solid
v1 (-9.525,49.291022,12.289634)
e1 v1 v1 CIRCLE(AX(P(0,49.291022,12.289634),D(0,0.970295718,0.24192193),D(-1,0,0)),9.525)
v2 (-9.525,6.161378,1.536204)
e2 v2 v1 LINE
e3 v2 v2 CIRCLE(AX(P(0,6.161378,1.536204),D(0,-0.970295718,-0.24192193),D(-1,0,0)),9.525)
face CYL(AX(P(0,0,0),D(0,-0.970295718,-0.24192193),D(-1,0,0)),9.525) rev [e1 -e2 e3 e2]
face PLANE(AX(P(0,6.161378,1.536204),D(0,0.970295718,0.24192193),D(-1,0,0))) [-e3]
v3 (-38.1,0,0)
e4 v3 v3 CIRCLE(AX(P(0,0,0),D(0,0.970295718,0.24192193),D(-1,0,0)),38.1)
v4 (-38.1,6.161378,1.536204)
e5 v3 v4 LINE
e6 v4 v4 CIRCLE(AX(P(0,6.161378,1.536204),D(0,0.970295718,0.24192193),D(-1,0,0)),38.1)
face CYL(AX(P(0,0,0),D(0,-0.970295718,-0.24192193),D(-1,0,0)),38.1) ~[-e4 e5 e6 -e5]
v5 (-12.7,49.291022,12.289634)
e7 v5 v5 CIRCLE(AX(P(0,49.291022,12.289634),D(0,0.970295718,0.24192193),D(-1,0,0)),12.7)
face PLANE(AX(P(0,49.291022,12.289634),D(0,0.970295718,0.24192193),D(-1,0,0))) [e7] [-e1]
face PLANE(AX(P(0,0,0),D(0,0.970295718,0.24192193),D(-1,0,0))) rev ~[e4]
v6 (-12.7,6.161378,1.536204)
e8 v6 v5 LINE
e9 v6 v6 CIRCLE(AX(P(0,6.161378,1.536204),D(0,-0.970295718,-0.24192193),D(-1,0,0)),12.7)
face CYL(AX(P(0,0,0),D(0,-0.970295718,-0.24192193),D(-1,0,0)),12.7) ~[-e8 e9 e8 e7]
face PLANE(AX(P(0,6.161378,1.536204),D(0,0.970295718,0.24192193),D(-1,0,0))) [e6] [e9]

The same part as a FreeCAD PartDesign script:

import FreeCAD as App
import Part
import Sketcher

V = App.Vector
Q = App.Units.Quantity

doc = App.newDocument("Part")
body = doc.addObject("PartDesign::Body", "Body")

sketch1 = doc.addObject("Sketcher::SketchObject", "Sketch")
body.addObject(sketch1)
sketch1.Placement = App.Placement(V(0, 0, 0), App.Rotation(V(-1, 0, 0), V(0, -0.24192193, 0.970295718), V(0, 0.970295718, 0.24192193), "ZXY"))
sketch1.addGeometry(Part.Circle(V(0, 0, 0), V(0, 0, 1), 38), False)
sketch1.addConstraint([
    Sketcher.Constraint("Coincident", 0, 3, -1, 1),
    Sketcher.Constraint("Diameter", 0, Q("3 in")),
])
pad1 = doc.addObject("PartDesign::Pad", "Pad")
body.addObject(pad1)
pad1.Profile = sketch1
pad1.Length = Q("0.25 in")

sketch2 = doc.addObject("Sketcher::SketchObject", "Sketch001")
body.addObject(sketch2)
sketch2.Placement = App.Placement(V(0, 0, 0), App.Rotation(V(-1, 0, 0), V(0, -0.24192193, 0.970295718), V(0, 0.970295718, 0.24192193), "ZXY"))
sketch2.addGeometry([
    Part.Circle(V(0, 0, 0), V(0, 0, 1), 13),
    Part.Circle(V(0, 0, 0), V(0, 0, 1), 10),
], False)
sketch2.addConstraint([
    Sketcher.Constraint("Coincident", 0, 3, -1, 1),
    Sketcher.Constraint("Coincident", 1, 3, -1, 1),
    Sketcher.Constraint("Diameter", 0, Q("1 in")),
    Sketcher.Constraint("Diameter", 1, Q("0.75 in")),
])
pad2 = doc.addObject("PartDesign::Pad", "Pad001")
body.addObject(pad2)
pad2.Profile = sketch2
pad2.Length = Q("2 in")

sketch3 = doc.addObject("Sketcher::SketchObject", "Sketch002")
body.addObject(sketch3)
sketch3.AttachmentSupport = (doc.YZ_Plane, [""])
sketch3.MapMode = "FlatFace"
sketch3.addGeometry([
    Part.LineSegment(V(4, -14, 0), V(-6, 23, 0)),
    Part.LineSegment(V(-6, 23, 0), V(-20, 19, 0)),
    Part.LineSegment(V(-20, 19, 0), V(-10, -18, 0)),
    Part.LineSegment(V(-10, -18, 0), V(4, -14, 0)),
], False)
sketch3.addConstraint([
    Sketcher.Constraint("Coincident", 0, 2, 1, 1),
    Sketcher.Constraint("Coincident", 1, 2, 2, 1),
    Sketcher.Constraint("Coincident", 2, 2, 3, 1),
    Sketcher.Constraint("Coincident", 3, 2, 0, 1),
    Sketcher.Constraint("Perpendicular", 2, 3),
    Sketcher.Constraint("Angle", 0, Q("104.000001 deg")),
    Sketcher.Constraint("Distance", 2, Q("1.5 in")),
    Sketcher.Constraint("Distance", 1, 14.768609),
    Sketcher.Constraint("DistanceY", -1, 1, 0, 2, 22.670809),
    Sketcher.Constraint("DistanceY", -1, 1, 1, 2, 18.754688),
    Sketcher.Constraint("DistanceX", 1, 2, 2, 2, 10.283209),
    Sketcher.Constraint("DistanceX", 0, 2, -1, 1, 5.652468),
])
pocket1 = doc.addObject("PartDesign::Pocket", "Pocket")
body.addObject(pocket1)
pocket1.Profile = sketch3
pocket1.Length = Q("1 in")

doc.recompute()
